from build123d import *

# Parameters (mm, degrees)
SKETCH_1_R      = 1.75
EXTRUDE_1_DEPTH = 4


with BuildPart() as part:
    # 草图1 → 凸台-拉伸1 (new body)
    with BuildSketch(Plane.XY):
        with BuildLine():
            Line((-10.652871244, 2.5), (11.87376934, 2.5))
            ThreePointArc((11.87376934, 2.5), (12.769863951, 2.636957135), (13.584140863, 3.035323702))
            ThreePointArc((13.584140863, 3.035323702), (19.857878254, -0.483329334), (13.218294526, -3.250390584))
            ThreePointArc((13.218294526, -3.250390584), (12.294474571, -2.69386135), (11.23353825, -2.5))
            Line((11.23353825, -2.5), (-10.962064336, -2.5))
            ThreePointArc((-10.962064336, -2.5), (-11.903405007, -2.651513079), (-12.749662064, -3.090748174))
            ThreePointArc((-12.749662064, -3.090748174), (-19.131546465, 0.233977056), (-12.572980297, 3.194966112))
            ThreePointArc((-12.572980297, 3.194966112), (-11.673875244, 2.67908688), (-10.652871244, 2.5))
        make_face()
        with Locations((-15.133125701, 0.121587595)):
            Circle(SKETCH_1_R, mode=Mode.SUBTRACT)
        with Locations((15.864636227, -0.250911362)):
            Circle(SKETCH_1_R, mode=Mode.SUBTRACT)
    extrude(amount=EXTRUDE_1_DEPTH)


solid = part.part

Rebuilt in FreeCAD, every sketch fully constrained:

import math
import FreeCAD as App
import Part
import Sketcher

V = App.Vector
Q = App.Units.Quantity

doc = App.newDocument("Part")
body = doc.addObject("PartDesign::Body", "Body")

# Sketch on XY plane
sketch1 = body.newObject("Sketcher::SketchObject", "Sketch")
sketch1.AttachmentSupport = (doc.getObject("XY_Plane"), [""])
sketch1.MapMode = "FlatFace"
sketch1.addGeometry([
    Part.LineSegment(V(11.873769, 2.5, 0), V(-10.652871, 2.5, 0)),  # 0
    Part.ArcOfCircle(Part.Circle(V(-10.652871, 5.5, 0), V(0, 0, 1), 3), math.radians(-129.79453), math.radians(-90)),  # 1
    Part.ArcOfCircle(Part.Circle(V(-15.133126, 0.121588, 0), V(0, 0, 1), 4), math.radians(50.20547), math.radians(306.574385)),  # 2
    Part.ArcOfCircle(Part.Circle(V(-10.962064, -5.5, 0), V(0, 0, 1), 3), math.radians(90), math.radians(126.574385)),  # 3
    Part.LineSegment(V(-10.962064, -2.5, 0), V(11.233538, -2.5, 0)),  # 4
    Part.ArcOfCircle(Part.Circle(V(11.233538, -5.5, 0), V(0, 0, 1), 3), math.radians(48.579101), math.radians(90)),  # 5
    Part.ArcOfCircle(Part.Circle(V(15.864636, -0.250911, 0), V(0, 0, 1), 4), math.radians(-131.420899), math.radians(124.758862)),  # 6
    Part.ArcOfCircle(Part.Circle(V(11.873769, 5.5, 0), V(0, 0, 1), 3), math.radians(-90), math.radians(-55.241138)),  # 7
    Part.Circle(V(15.864636, -0.250911, 0), V(0, 0, 1), 1.75),  # 8
    Part.Circle(V(-15.133126, 0.121588, 0), V(0, 0, 1), 1.75),  # 9
], False)
sketch1.addConstraint([
    Sketcher.Constraint("Tangent", 0, 2, 1, 2),
    Sketcher.Constraint("Tangent", 1, 1, 2, 1),
    Sketcher.Constraint("Tangent", 2, 2, 3, 2),
    Sketcher.Constraint("Tangent", 3, 1, 4, 1),
    Sketcher.Constraint("Tangent", 4, 2, 5, 2),
    Sketcher.Constraint("Tangent", 5, 1, 6, 1),
    Sketcher.Constraint("Tangent", 6, 2, 7, 2),
    Sketcher.Constraint("Tangent", 7, 1, 0, 1),
    Sketcher.Constraint("Horizontal", 0),
    Sketcher.Constraint("Horizontal", 4),
    Sketcher.Constraint("Coincident", 8, 3, 6, 3),
    Sketcher.Constraint("Coincident", 9, 3, 2, 3),
    Sketcher.Constraint("Equal", 1, 3),
    Sketcher.Constraint("Equal", 3, 5),
    Sketcher.Constraint("Equal", 2, 6),
    Sketcher.Constraint("Equal", 5, 7),
    Sketcher.Constraint("Equal", 8, 9),
    Sketcher.Constraint("Radius", 1, Q("3 mm")),
    Sketcher.Constraint("Radius", 2, Q("4 mm")),
    Sketcher.Constraint("Diameter", 8, Q("3.5 mm")),
    Sketcher.Constraint("DistanceY", 3, 3, 1, 3, Q("11 mm")),
    Sketcher.Constraint("DistanceY", -1, 1, 1, 3, Q("5.5 mm")),
    Sketcher.Constraint("DistanceX", 0, 2, 0, 1, Q("22.526641 mm")),
    Sketcher.Constraint("DistanceX", 3, 3, 6, 3, Q("26.826701 mm")),
    Sketcher.Constraint("DistanceY", 6, 3, 2, 3, Q("0.372499 mm")),
    Sketcher.Constraint("DistanceX", 1, 3, -1, 1, Q("10.652871 mm")),
])
pad1 = body.newObject("PartDesign::Pad", "Pad")
pad1.Profile = sketch1
pad1.Length = 4

doc.recompute()
